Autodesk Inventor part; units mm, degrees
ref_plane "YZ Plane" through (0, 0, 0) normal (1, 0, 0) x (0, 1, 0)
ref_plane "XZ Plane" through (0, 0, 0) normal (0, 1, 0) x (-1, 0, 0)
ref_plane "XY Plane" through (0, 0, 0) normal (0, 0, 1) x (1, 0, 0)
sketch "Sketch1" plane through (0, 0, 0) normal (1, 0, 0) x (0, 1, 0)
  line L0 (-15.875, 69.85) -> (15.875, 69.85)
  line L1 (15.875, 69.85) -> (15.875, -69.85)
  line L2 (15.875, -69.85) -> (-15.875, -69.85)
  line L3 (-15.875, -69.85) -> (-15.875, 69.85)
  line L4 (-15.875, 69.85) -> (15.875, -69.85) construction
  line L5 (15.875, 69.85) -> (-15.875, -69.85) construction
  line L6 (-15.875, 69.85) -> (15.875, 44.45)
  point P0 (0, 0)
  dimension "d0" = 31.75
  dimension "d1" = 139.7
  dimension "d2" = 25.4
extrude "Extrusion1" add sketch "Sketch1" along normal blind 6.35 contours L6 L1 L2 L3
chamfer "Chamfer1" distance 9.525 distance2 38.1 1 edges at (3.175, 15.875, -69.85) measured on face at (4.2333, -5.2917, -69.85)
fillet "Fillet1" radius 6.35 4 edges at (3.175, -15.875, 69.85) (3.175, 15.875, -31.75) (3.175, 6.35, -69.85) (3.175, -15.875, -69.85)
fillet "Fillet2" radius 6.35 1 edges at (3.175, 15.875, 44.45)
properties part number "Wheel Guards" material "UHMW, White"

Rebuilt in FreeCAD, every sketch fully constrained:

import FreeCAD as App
import Part
import Sketcher
from FreeCAD import Vector
Q = App.Units.Quantity


def edges_at(feature, points):
    """Names of the edges that pass closest to the given points."""
    edges = feature.Shape.Edges
    near = lambda p: min(range(len(edges)), key=lambda i: edges[i].distToShape(Part.Vertex(*p))[0])
    return sorted({f"Edge{near(p) + 1}" for p in points})

doc = App.newDocument("Part")
body = doc.addObject("PartDesign::Body", "Body")

# Sketch on YZ plane
sketch1 = body.newObject("Sketcher::SketchObject", "Sketch")
sketch1.AttachmentSupport = (doc.getObject("YZ_Plane"), [""])
sketch1.MapMode = "FlatFace"
sketch1.addGeometry([
    Part.LineSegment(Vector(15.875, 44.45, 0), Vector(-15.875, 69.85, 0)),
    Part.LineSegment(Vector(-15.875, 69.85, 0), Vector(-15.875, -69.85, 0)),
    Part.LineSegment(Vector(-15.875, -69.85, 0), Vector(15.875, -69.85, 0)),
    Part.LineSegment(Vector(15.875, -69.85, 0), Vector(15.875, 44.45, 0)),
], False)
sketch1.addConstraint([
    Sketcher.Constraint("Coincident", 0, 2, 1, 1),
    Sketcher.Constraint("Coincident", 1, 2, 2, 1),
    Sketcher.Constraint("Coincident", 2, 2, 3, 1),
    Sketcher.Constraint("Coincident", 3, 2, 0, 1),
    Sketcher.Constraint("Vertical", 1),
    Sketcher.Constraint("Horizontal", 2),
    Sketcher.Constraint("Vertical", 3),
    Sketcher.Constraint("Symmetric", 0, 2, 2, 2, -1, 1),
    Sketcher.Constraint("DistanceY", 1, 2, 1, 1, Q("5.5 in")),
    Sketcher.Constraint("DistanceY", 3, 2, 0, 2, Q("1 in")),
    Sketcher.Constraint("DistanceX", 2, 1, 2, 2, Q("1.25 in")),
])
pad1 = body.newObject("PartDesign::Pad", "Pad")
pad1.Profile = sketch1
pad1.Length = Q("0.25 in")
doc.recompute()

chamfer = body.newObject("PartDesign::Chamfer", "Chamfer")
chamfer.Base = (pad1, edges_at(pad1, [(3.175, 15.875, -69.85)]))
chamfer.ChamferType = "Two distances"
chamfer.Size = Q("0.375 in")
chamfer.Size2 = Q("1.5 in")
doc.recompute()

fillet = body.newObject("PartDesign::Fillet", "Fillet")
fillet.Base = (chamfer, edges_at(chamfer, [
    (3.175, -15.875, 69.85),
    (3.175, 15.875, -31.75),
    (3.175, 6.35, -69.85),
    (3.175, -15.875, -69.85),
]))
fillet.Radius = Q("0.25 in")
doc.recompute()

fillet2 = body.newObject("PartDesign::Fillet", "Fillet001")
fillet2.Base = (fillet, edges_at(fillet, [(3.175, 15.875, 44.45)]))
fillet2.Radius = Q("0.25 in")

doc.recompute()
